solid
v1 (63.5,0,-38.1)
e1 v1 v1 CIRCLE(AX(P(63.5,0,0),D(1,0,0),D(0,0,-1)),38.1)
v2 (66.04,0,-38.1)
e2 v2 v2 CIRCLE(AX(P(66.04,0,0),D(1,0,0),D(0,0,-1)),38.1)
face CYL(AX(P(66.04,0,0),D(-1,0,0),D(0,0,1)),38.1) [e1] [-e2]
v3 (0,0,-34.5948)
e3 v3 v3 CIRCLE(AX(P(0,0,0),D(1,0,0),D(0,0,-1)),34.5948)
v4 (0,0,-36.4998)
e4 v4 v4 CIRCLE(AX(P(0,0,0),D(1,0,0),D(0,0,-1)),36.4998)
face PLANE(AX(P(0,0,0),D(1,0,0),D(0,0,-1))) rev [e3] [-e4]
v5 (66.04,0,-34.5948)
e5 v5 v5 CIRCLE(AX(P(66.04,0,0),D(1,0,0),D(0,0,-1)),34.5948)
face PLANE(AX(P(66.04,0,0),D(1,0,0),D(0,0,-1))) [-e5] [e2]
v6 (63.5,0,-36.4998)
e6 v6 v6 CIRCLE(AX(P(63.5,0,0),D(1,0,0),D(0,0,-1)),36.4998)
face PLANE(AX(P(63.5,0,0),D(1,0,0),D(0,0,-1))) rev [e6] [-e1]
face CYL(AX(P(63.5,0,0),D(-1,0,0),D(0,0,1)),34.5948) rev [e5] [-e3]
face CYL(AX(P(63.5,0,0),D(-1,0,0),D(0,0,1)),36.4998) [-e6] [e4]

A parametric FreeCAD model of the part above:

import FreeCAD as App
import Part
import Sketcher
from FreeCAD import Vector
Q = App.Units.Quantity

doc = App.newDocument("Part")
body = doc.addObject("PartDesign::Body", "Body")

# Sketch on YZ plane
sketch1 = doc.addObject("Sketcher::SketchObject", "Sketch")
body.addObject(sketch1)
sketch1.AttachmentSupport = (doc.YZ_Plane, [""])
sketch1.MapMode = "FlatFace"
sketch1.addGeometry([
    Part.Circle(Vector(0, 0, 0), Vector(0, 0, 1), 36),
    Part.Circle(Vector(0, 0, 0), Vector(0, 0, 1), 35),
], False)
sketch1.addConstraint([
    Sketcher.Constraint("Coincident", 0, 3, -1, 1),
    Sketcher.Constraint("Coincident", 1, 3, -1, 1),
    Sketcher.Constraint("Diameter", 0, Q("2.874 in")),
    Sketcher.Constraint("Diameter", 1, Q("2.724 in")),
])
pad1 = doc.addObject("PartDesign::Pad", "Pad")
body.addObject(pad1)
pad1.Profile = sketch1
pad1.Length = Q("2.5 in")

# Sketch on YZ plane
sketch2 = doc.addObject("Sketcher::SketchObject", "Sketch001")
body.addObject(sketch2)
sketch2.AttachmentSupport = (doc.YZ_Plane, [""])
sketch2.MapMode = "FlatFace"
sketch2.AttachmentOffset = App.Placement(Vector(0, 0, 2.5 * 25.4), App.Rotation())
sketch2.addGeometry([
    Part.Circle(Vector(0, 0, 0), Vector(0, 0, 1), 38),
    Part.Circle(Vector(0, 0, 0), Vector(0, 0, 1), 35),
], False)
sketch2.addConstraint([
    Sketcher.Constraint("Coincident", 0, 3, -1, 1),
    Sketcher.Constraint("Coincident", 1, 3, -1, 1),
    Sketcher.Constraint("Diameter", 0, Q("3 in")),
    Sketcher.Constraint("Diameter", 1, Q("2.724 in")),
])
pad2 = doc.addObject("PartDesign::Pad", "Pad001")
body.addObject(pad2)
pad2.Profile = sketch2
pad2.Length = Q("0.1 in")

doc.recompute()
